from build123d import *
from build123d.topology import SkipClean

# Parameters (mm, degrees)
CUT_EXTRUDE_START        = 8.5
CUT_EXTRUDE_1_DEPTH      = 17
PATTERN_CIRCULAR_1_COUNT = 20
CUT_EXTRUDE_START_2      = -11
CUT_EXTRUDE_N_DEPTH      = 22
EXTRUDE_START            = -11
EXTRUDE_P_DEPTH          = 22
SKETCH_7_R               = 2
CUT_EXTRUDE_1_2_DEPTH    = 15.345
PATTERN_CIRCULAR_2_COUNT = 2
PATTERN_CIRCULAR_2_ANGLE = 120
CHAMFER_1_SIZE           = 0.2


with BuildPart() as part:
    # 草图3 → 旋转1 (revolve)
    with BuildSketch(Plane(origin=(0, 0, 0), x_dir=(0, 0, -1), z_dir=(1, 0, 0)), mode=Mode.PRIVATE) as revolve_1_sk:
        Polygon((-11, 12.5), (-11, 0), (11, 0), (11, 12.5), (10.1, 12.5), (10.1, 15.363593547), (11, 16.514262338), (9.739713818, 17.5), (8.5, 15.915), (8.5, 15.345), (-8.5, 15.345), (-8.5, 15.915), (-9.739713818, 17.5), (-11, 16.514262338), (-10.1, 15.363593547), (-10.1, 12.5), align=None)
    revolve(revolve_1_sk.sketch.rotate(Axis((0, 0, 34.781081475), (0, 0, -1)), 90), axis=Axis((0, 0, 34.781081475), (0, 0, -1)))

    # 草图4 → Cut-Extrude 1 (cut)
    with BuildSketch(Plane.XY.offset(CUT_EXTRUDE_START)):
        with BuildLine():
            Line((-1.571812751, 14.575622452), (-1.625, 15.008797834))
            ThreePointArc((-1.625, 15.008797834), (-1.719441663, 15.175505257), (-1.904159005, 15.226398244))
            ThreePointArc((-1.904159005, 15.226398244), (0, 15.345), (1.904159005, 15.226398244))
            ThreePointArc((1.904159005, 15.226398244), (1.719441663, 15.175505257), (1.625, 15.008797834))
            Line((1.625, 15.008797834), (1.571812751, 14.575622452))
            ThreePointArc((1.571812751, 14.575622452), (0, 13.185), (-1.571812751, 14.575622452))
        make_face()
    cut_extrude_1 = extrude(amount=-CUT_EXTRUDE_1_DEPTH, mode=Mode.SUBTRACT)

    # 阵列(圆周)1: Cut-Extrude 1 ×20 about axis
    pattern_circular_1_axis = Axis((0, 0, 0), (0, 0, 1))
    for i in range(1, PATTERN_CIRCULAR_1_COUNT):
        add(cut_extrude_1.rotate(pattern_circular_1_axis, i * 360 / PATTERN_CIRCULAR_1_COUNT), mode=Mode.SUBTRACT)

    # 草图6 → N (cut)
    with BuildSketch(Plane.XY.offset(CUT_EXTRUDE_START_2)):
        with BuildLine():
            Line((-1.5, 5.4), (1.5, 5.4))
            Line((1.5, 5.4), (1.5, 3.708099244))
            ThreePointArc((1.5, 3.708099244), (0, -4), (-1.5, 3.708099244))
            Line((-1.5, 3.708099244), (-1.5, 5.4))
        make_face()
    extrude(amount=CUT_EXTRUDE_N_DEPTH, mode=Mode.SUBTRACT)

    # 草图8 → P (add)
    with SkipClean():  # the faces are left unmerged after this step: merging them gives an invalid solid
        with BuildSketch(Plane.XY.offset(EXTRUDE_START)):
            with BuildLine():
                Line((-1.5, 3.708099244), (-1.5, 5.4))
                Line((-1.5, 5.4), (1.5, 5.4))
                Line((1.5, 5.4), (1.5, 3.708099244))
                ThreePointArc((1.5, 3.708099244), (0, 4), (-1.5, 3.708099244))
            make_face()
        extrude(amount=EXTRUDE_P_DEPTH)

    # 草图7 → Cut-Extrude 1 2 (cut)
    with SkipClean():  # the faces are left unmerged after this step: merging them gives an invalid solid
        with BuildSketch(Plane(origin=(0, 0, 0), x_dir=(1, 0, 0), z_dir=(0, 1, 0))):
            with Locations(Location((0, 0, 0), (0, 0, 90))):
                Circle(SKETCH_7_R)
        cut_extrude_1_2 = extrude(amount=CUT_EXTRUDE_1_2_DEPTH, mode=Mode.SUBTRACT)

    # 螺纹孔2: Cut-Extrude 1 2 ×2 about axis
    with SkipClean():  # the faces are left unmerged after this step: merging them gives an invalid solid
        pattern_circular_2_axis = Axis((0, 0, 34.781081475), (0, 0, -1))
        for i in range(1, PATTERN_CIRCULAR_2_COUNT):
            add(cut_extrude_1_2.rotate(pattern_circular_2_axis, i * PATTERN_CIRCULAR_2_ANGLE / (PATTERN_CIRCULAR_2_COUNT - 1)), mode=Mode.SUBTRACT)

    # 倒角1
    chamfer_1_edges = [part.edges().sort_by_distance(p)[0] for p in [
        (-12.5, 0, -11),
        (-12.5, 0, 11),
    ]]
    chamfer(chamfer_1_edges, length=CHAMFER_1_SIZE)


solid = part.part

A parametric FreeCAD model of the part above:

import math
import FreeCAD as App
import Part
import Sketcher
from FreeCAD import Vector
Q = App.Units.Quantity


def edges_at(feature, points):
    """Names of the edges that pass closest to the given points."""
    edges = feature.Shape.Edges
    near = lambda p: min(range(len(edges)), key=lambda i: edges[i].distToShape(Part.Vertex(*p))[0])
    return sorted({f"Edge{near(p) + 1}" for p in points})

doc = App.newDocument("Part")
body = doc.addObject("PartDesign::Body", "Body")

# Sketch on YZ plane
sketch1 = doc.addObject("Sketcher::SketchObject", "Sketch")
body.addObject(sketch1)
sketch1.AttachmentSupport = (doc.YZ_Plane, [""])
sketch1.MapMode = "FlatFace"
sketch1.addGeometry(Part.LineSegment(Vector(12.5, 11, 0), Vector(0, 11, 0)), False)
sketch1.addGeometry(Part.LineSegment(Vector(0, 11, 0), Vector(0, -11, 0)), False)
sketch1.addGeometry(Part.LineSegment(Vector(0, -11, 0), Vector(12.5, -11, 0)), False)
sketch1.addGeometry(Part.LineSegment(Vector(12.5, -11, 0), Vector(12.5, -10.1, 0)), False)
sketch1.addGeometry(Part.LineSegment(Vector(12.5, -10.1, 0), Vector(15.363594, -10.1, 0)), False)
sketch1.addGeometry(Part.LineSegment(Vector(15.363594, -10.1, 0), Vector(16.514262, -11, 0)), False)
sketch1.addGeometry(Part.LineSegment(Vector(16.514262, -11, 0), Vector(17.5, -9.739714, 0)), False)
sketch1.addGeometry(Part.LineSegment(Vector(17.5, -9.739714, 0), Vector(15.915, -8.5, 0)), False)
sketch1.addGeometry(Part.LineSegment(Vector(15.915, -8.5, 0), Vector(15.345, -8.5, 0)), False)
sketch1.addGeometry(Part.LineSegment(Vector(15.345, -8.5, 0), Vector(15.345, 8.5, 0)), False)
sketch1.addGeometry(Part.LineSegment(Vector(15.345, 8.5, 0), Vector(15.915, 8.5, 0)), False)
sketch1.addGeometry(Part.LineSegment(Vector(15.915, 8.5, 0), Vector(17.5, 9.739714, 0)), False)
sketch1.addGeometry(Part.LineSegment(Vector(17.5, 9.739714, 0), Vector(16.514262, 11, 0)), False)
sketch1.addGeometry(Part.LineSegment(Vector(16.514262, 11, 0), Vector(15.363594, 10.1, 0)), False)
sketch1.addGeometry(Part.LineSegment(Vector(15.363594, 10.1, 0), Vector(12.5, 10.1, 0)), False)
sketch1.addGeometry(Part.LineSegment(Vector(12.5, 10.1, 0), Vector(12.5, 11, 0)), False)
sketch1.addConstraint(Sketcher.Constraint("Coincident", 0, 2, 1, 1))
sketch1.addConstraint(Sketcher.Constraint("Coincident", 1, 2, 2, 1))
sketch1.addConstraint(Sketcher.Constraint("Coincident", 2, 2, 3, 1))
sketch1.addConstraint(Sketcher.Constraint("Coincident", 3, 2, 4, 1))
sketch1.addConstraint(Sketcher.Constraint("Coincident", 4, 2, 5, 1))
sketch1.addConstraint(Sketcher.Constraint("Coincident", 5, 2, 6, 1))
sketch1.addConstraint(Sketcher.Constraint("Coincident", 6, 2, 7, 1))
sketch1.addConstraint(Sketcher.Constraint("Coincident", 7, 2, 8, 1))
sketch1.addConstraint(Sketcher.Constraint("Coincident", 8, 2, 9, 1))
sketch1.addConstraint(Sketcher.Constraint("Coincident", 9, 2, 10, 1))
sketch1.addConstraint(Sketcher.Constraint("Coincident", 10, 2, 11, 1))
sketch1.addConstraint(Sketcher.Constraint("Coincident", 11, 2, 12, 1))
sketch1.addConstraint(Sketcher.Constraint("Coincident", 12, 2, 13, 1))
sketch1.addConstraint(Sketcher.Constraint("Coincident", 13, 2, 14, 1))
sketch1.addConstraint(Sketcher.Constraint("Coincident", 14, 2, 15, 1))
sketch1.addConstraint(Sketcher.Constraint("Coincident", 15, 2, 0, 1))
sketch1.addConstraint(Sketcher.Constraint("Horizontal", 0))
sketch1.addConstraint(Sketcher.Constraint("Vertical", 1))
sketch1.addConstraint(Sketcher.Constraint("Horizontal", 2))
sketch1.addConstraint(Sketcher.Constraint("Vertical", 3))
sketch1.addConstraint(Sketcher.Constraint("Horizontal", 4))
sketch1.addConstraint(Sketcher.Constraint("Horizontal", 8))
sketch1.addConstraint(Sketcher.Constraint("Vertical", 9))
sketch1.addConstraint(Sketcher.Constraint("Horizontal", 10))
sketch1.addConstraint(Sketcher.Constraint("Horizontal", 14))
sketch1.addConstraint(Sketcher.Constraint("Vertical", 15))
sketch1.addConstraint(Sketcher.Constraint("Symmetric", 0, 2, 1, 2, -1, 1))
sketch1.addConstraint(Sketcher.Constraint("Symmetric", 7, 2, 10, 2, -1))
sketch1.addConstraint(Sketcher.Constraint("Symmetric", 6, 2, 11, 2, -1))
sketch1.addConstraint(Sketcher.Constraint("Symmetric", 5, 2, 12, 2, -1))
sketch1.addConstraint(Sketcher.Constraint("Symmetric", 4, 2, 13, 2, -1))
sketch1.addConstraint(Sketcher.Constraint("Perpendicular", 5, 6))
sketch1.addConstraint(Sketcher.Constraint("Perpendicular", 6, 7))
sketch1.addConstraint(Sketcher.Constraint("Horizontal", 2, 2, 5, 2))
sketch1.addConstraint(Sketcher.Constraint("Vertical", 3, 2, 14, 2))
sketch1.addConstraint(Sketcher.Constraint("DistanceY", 1, 2, 1, 1, Q("22 mm")))
sketch1.addConstraint(Sketcher.Constraint("DistanceY", 9, 1, 9, 2, Q("17 mm")))
sketch1.addConstraint(Sketcher.Constraint("DistanceX", 0, 2, 0, 1, Q("12.5 mm")))
sketch1.addConstraint(Sketcher.Constraint("DistanceY", 3, 1, 3, 2, Q("0.9 mm")))
sketch1.addConstraint(Sketcher.Constraint("DistanceX", 3, 2, 6, 2, Q("5 mm")))
sketch1.addConstraint(Sketcher.Constraint("Distance", 6, Q("1.6 mm")))
sketch1.addConstraint(Sketcher.Constraint("DistanceX", 8, 2, 8, 1, Q("0.57 mm")))
sketch1.addConstraint(Sketcher.Constraint("DistanceX", -1, 1, 7, 2, Q("15.915 mm")))
revolution = doc.addObject("PartDesign::Revolution", "Revolution")
body.addObject(revolution)
revolution.Profile = sketch1
revolution.ReferenceAxis = (sketch1, ["V_Axis"])
revolution.Angle = 360

# Sketch on XY plane
sketch2 = doc.addObject("Sketcher::SketchObject", "Sketch001")
body.addObject(sketch2)
sketch2.AttachmentSupport = (doc.XY_Plane, [""])
sketch2.MapMode = "FlatFace"
sketch2.AttachmentOffset = App.Placement(Vector(0, 0, 8.5), App.Rotation())
sketch2.addGeometry(Part.LineSegment(Vector(-1.625, 15.008798, 0), Vector(-1.571813, 14.575622, 0)), False)
sketch2.addGeometry(Part.ArcOfCircle(Part.Circle(Vector(0, 14.768617, 0), Vector(0, 0, 1), 1.583617), math.radians(-173), math.radians(-7)), False)
sketch2.addGeometry(Part.LineSegment(Vector(1.571813, 14.575622, 0), Vector(1.625, 15.008798, 0)), False)
sketch2.addGeometry(Part.ArcOfCircle(Part.Circle(Vector(1.873137, 14.97833, 0), Vector(0, 0, 1), 0.25), math.radians(82.8718), math.radians(173)), False)
sketch2.addGeometry(Part.ArcOfCircle(Part.Circle(Vector(0, 0, 0), Vector(0, 0, 1), 15.345), math.radians(82.8718), math.radians(97.1282)), False)
sketch2.addGeometry(Part.ArcOfCircle(Part.Circle(Vector(-1.873137, 14.97833, 0), Vector(0, 0, 1), 0.25), math.radians(7), math.radians(97.1282)), False)
sketch2.addConstraint(Sketcher.Constraint("Tangent", 0, 2, 1, 1))
sketch2.addConstraint(Sketcher.Constraint("Tangent", 1, 2, 2, 1))
sketch2.addConstraint(Sketcher.Constraint("Tangent", 2, 2, 3, 2))
sketch2.addConstraint(Sketcher.Constraint("Tangent", 3, 1, 4, 1))
sketch2.addConstraint(Sketcher.Constraint("Tangent", 4, 2, 5, 2))
sketch2.addConstraint(Sketcher.Constraint("Tangent", 5, 1, 0, 1))
sketch2.addConstraint(Sketcher.Constraint("Coincident", 4, 3, -1, 1))
sketch2.addConstraint(Sketcher.Constraint("Equal", 3, 5))
sketch2.addConstraint(Sketcher.Constraint("Symmetric", 0, 2, 1, 2, -2))
sketch2.addConstraint(Sketcher.Constraint("Angle", 0, Q("-83 deg")))
sketch2.addConstraint(Sketcher.Constraint("Radius", 3, Q("0.25 mm")))
sketch2.addConstraint(Sketcher.Constraint("Radius", 4, Q("15.345 mm")))
sketch2.addConstraint(Sketcher.Constraint("DistanceX", -1, 1, 2, 2, Q("1.625 mm")))
sketch2.addConstraint(Sketcher.Constraint("Radius", 1, Q("1.583617 mm")))
pocket1 = doc.addObject("PartDesign::Pocket", "Pocket")
body.addObject(pocket1)
pocket1.Profile = sketch2
pocket1.Length = 17
doc.recompute()

polarpattern = doc.addObject("PartDesign::PolarPattern", "PolarPattern")
body.addObject(polarpattern)
polarpattern.Originals = [pocket1]
polarpattern.Axis = (doc.Z_Axis, [""])
polarpattern.Angle = 360
polarpattern.Occurrences = 20
body.Tip = polarpattern

# Sketch on XY plane
sketch3 = doc.addObject("Sketcher::SketchObject", "Sketch002")
body.addObject(sketch3)
sketch3.AttachmentSupport = (doc.XY_Plane, [""])
sketch3.MapMode = "FlatFace"
sketch3.AttachmentOffset = App.Placement(Vector(0, 0, -11), App.Rotation())
sketch3.addGeometry(Part.LineSegment(Vector(1.5, 5.4, 0), Vector(-1.5, 5.4, 0)), False)
sketch3.addGeometry(Part.LineSegment(Vector(-1.5, 5.4, 0), Vector(-1.5, 3.708099, 0)), False)
sketch3.addGeometry(Part.ArcOfCircle(Part.Circle(Vector(0, 0, 0), Vector(0, 0, 1), 4), math.radians(112.024313), math.radians(427.975687)), False)
sketch3.addGeometry(Part.LineSegment(Vector(1.5, 3.708099, 0), Vector(1.5, 5.4, 0)), False)
sketch3.addConstraint(Sketcher.Constraint("Coincident", 0, 2, 1, 1))
sketch3.addConstraint(Sketcher.Constraint("Coincident", 1, 2, 2, 1))
sketch3.addConstraint(Sketcher.Constraint("Coincident", 2, 2, 3, 1))
sketch3.addConstraint(Sketcher.Constraint("Coincident", 3, 2, 0, 1))
sketch3.addConstraint(Sketcher.Constraint("Horizontal", 0))
sketch3.addConstraint(Sketcher.Constraint("Vertical", 1))
sketch3.addConstraint(Sketcher.Constraint("Vertical", 3))
sketch3.addConstraint(Sketcher.Constraint("Coincident", 2, 3, -1, 1))
sketch3.addConstraint(Sketcher.Constraint("Horizontal", 1, 2, 2, 2))
sketch3.addConstraint(Sketcher.Constraint("Radius", 2, Q("4 mm")))
sketch3.addConstraint(Sketcher.Constraint("DistanceX", 0, 2, 0, 1, Q("3 mm")))
sketch3.addConstraint(Sketcher.Constraint("DistanceY", -1, 1, 0, 2, Q("5.4 mm")))
pocket2 = doc.addObject("PartDesign::Pocket", "Pocket001")
body.addObject(pocket2)
pocket2.Profile = sketch3
pocket2.Length = 22
pocket2.Reversed = True

# Sketch on XY plane
sketch4 = doc.addObject("Sketcher::SketchObject", "Sketch003")
body.addObject(sketch4)
sketch4.AttachmentSupport = (doc.XY_Plane, [""])
sketch4.MapMode = "FlatFace"
sketch4.AttachmentOffset = App.Placement(Vector(0, 0, -11), App.Rotation())
sketch4.addGeometry(Part.LineSegment(Vector(-1.5, 5.4, 0), Vector(-1.5, 3.708099, 0)), False)
sketch4.addGeometry(Part.ArcOfCircle(Part.Circle(Vector(0, 0, 0), Vector(0, 0, 1), 4), math.radians(67.975687), math.radians(112.024313)), False)
sketch4.addGeometry(Part.LineSegment(Vector(1.5, 3.708099, 0), Vector(1.5, 5.4, 0)), False)
sketch4.addGeometry(Part.LineSegment(Vector(1.5, 5.4, 0), Vector(-1.5, 5.4, 0)), False)
sketch4.addConstraint(Sketcher.Constraint("Coincident", 0, 2, 1, 2))
sketch4.addConstraint(Sketcher.Constraint("Coincident", 1, 1, 2, 1))
sketch4.addConstraint(Sketcher.Constraint("Coincident", 2, 2, 3, 1))
sketch4.addConstraint(Sketcher.Constraint("Coincident", 3, 2, 0, 1))
sketch4.addConstraint(Sketcher.Constraint("Vertical", 0))
sketch4.addConstraint(Sketcher.Constraint("Vertical", 2))
sketch4.addConstraint(Sketcher.Constraint("Horizontal", 3))
sketch4.addConstraint(Sketcher.Constraint("Coincident", 1, 3, -1, 1))
sketch4.addConstraint(Sketcher.Constraint("Horizontal", 0, 2, 1, 1))
sketch4.addConstraint(Sketcher.Constraint("Radius", 1, Q("4 mm")))
sketch4.addConstraint(Sketcher.Constraint("DistanceX", 3, 2, 3, 1, Q("3 mm")))
sketch4.addConstraint(Sketcher.Constraint("DistanceY", -1, 1, 2, 2, Q("5.4 mm")))
pad1 = doc.addObject("PartDesign::Pad", "Pad")
body.addObject(pad1)
pad1.Profile = sketch4
pad1.Length = 22

# Sketch on XZ plane
sketch5 = doc.addObject("Sketcher::SketchObject", "Sketch004")
body.addObject(sketch5)
sketch5.AttachmentSupport = (doc.XZ_Plane, [""])
sketch5.MapMode = "FlatFace"
sketch5.addGeometry(Part.Circle(Vector(0, 0, 0), Vector(0, 0, 1), 2), False)
sketch5.addConstraint(Sketcher.Constraint("Coincident", 0, 3, -1, 1))
sketch5.addConstraint(Sketcher.Constraint("Diameter", 0, Q("4 mm")))
pocket3 = doc.addObject("PartDesign::Pocket", "Pocket002")
body.addObject(pocket3)
pocket3.Profile = sketch5
pocket3.Length = 15.345
doc.recompute()

polarpattern2 = doc.addObject("PartDesign::PolarPattern", "PolarPattern001")
body.addObject(polarpattern2)
polarpattern2.Originals = [pocket3]
polarpattern2.Axis = (doc.Z_Axis, [""])
polarpattern2.Angle = 120
polarpattern2.Occurrences = 2
polarpattern2.Reversed = True
body.Tip = polarpattern2
doc.recompute()

chamfer = doc.addObject("PartDesign::Chamfer", "Chamfer")
body.addObject(chamfer)
chamfer.Base = (polarpattern2, edges_at(polarpattern2, [(-12.5, 0, -11), (-12.5, 0, 11)]))
chamfer.Size = 0.2

doc.recompute()
